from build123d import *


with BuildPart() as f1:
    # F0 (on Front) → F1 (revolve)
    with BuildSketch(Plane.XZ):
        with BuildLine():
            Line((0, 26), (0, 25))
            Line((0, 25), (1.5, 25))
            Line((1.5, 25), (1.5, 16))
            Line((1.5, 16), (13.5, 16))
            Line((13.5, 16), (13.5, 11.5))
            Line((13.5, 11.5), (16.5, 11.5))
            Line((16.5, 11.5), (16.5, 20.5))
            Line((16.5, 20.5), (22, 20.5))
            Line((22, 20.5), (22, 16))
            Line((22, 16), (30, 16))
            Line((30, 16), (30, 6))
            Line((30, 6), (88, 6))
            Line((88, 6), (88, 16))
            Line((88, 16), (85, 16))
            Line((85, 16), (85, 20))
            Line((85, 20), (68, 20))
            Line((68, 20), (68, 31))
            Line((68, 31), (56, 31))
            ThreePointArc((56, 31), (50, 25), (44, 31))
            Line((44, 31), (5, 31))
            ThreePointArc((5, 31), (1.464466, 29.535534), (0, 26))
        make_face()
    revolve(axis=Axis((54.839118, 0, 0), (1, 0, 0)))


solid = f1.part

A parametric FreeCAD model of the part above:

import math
import FreeCAD as App
import Part
import Sketcher

doc = App.newDocument("Part")
body = doc.addObject("PartDesign::Body", "Body")

sketch1 = doc.addObject("Sketcher::SketchObject", "Sketch")
body.addObject(sketch1)
sketch1.AttachmentSupport = (doc.XZ_Plane, [""])
sketch1.MapMode = "FlatFace"
sketch1.addGeometry(Part.LineSegment(App.Vector(0, 26, 0), App.Vector(0, 25, 0)), False)
sketch1.addGeometry(Part.LineSegment(App.Vector(0, 25, 0), App.Vector(1.5, 25, 0)), False)
sketch1.addGeometry(Part.LineSegment(App.Vector(1.5, 25, 0), App.Vector(1.5, 16, 0)), False)
sketch1.addGeometry(Part.LineSegment(App.Vector(1.5, 16, 0), App.Vector(13.5, 16, 0)), False)
sketch1.addGeometry(Part.LineSegment(App.Vector(13.5, 16, 0), App.Vector(13.5, 11.5, 0)), False)
sketch1.addGeometry(Part.LineSegment(App.Vector(13.5, 11.5, 0), App.Vector(16.5, 11.5, 0)), False)
sketch1.addGeometry(Part.LineSegment(App.Vector(16.5, 11.5, 0), App.Vector(16.5, 20.5, 0)), False)
sketch1.addGeometry(Part.LineSegment(App.Vector(16.5, 20.5, 0), App.Vector(22, 20.5, 0)), False)
sketch1.addGeometry(Part.LineSegment(App.Vector(22, 20.5, 0), App.Vector(22, 16, 0)), False)
sketch1.addGeometry(Part.LineSegment(App.Vector(22, 16, 0), App.Vector(30, 16, 0)), False)
sketch1.addGeometry(Part.LineSegment(App.Vector(30, 16, 0), App.Vector(30, 6, 0)), False)
sketch1.addGeometry(Part.LineSegment(App.Vector(30, 6, 0), App.Vector(88, 6, 0)), False)
sketch1.addGeometry(Part.LineSegment(App.Vector(88, 6, 0), App.Vector(88, 16, 0)), False)
sketch1.addGeometry(Part.LineSegment(App.Vector(88, 16, 0), App.Vector(85, 16, 0)), False)
sketch1.addGeometry(Part.LineSegment(App.Vector(85, 16, 0), App.Vector(85, 20, 0)), False)
sketch1.addGeometry(Part.LineSegment(App.Vector(85, 20, 0), App.Vector(68, 20, 0)), False)
sketch1.addGeometry(Part.LineSegment(App.Vector(68, 20, 0), App.Vector(68, 31, 0)), False)
sketch1.addGeometry(Part.LineSegment(App.Vector(68, 31, 0), App.Vector(56, 31, 0)), False)
sketch1.addGeometry(Part.ArcOfCircle(Part.Circle(App.Vector(50, 31, 0), App.Vector(0, 0, 1), 6), math.radians(180), math.radians(360)), False)
sketch1.addGeometry(Part.LineSegment(App.Vector(44, 31, 0), App.Vector(5, 31, 0)), False)
sketch1.addGeometry(Part.ArcOfCircle(Part.Circle(App.Vector(5, 26, 0), App.Vector(0, 0, 1), 5), math.radians(89.999996), math.radians(180.000004)), False)
sketch1.addConstraint(Sketcher.Constraint("Coincident", 0, 2, 1, 1))
sketch1.addConstraint(Sketcher.Constraint("Coincident", 1, 2, 2, 1))
sketch1.addConstraint(Sketcher.Constraint("Coincident", 2, 2, 3, 1))
sketch1.addConstraint(Sketcher.Constraint("Coincident", 3, 2, 4, 1))
sketch1.addConstraint(Sketcher.Constraint("Coincident", 4, 2, 5, 1))
sketch1.addConstraint(Sketcher.Constraint("Coincident", 5, 2, 6, 1))
sketch1.addConstraint(Sketcher.Constraint("Coincident", 6, 2, 7, 1))
sketch1.addConstraint(Sketcher.Constraint("Coincident", 7, 2, 8, 1))
sketch1.addConstraint(Sketcher.Constraint("Coincident", 8, 2, 9, 1))
sketch1.addConstraint(Sketcher.Constraint("Coincident", 9, 2, 10, 1))
sketch1.addConstraint(Sketcher.Constraint("Coincident", 10, 2, 11, 1))
sketch1.addConstraint(Sketcher.Constraint("Coincident", 11, 2, 12, 1))
sketch1.addConstraint(Sketcher.Constraint("Coincident", 12, 2, 13, 1))
sketch1.addConstraint(Sketcher.Constraint("Coincident", 13, 2, 14, 1))
sketch1.addConstraint(Sketcher.Constraint("Coincident", 14, 2, 15, 1))
sketch1.addConstraint(Sketcher.Constraint("Coincident", 15, 2, 16, 1))
sketch1.addConstraint(Sketcher.Constraint("Coincident", 16, 2, 17, 1))
sketch1.addConstraint(Sketcher.Constraint("Coincident", 17, 2, 18, 2))
sketch1.addConstraint(Sketcher.Constraint("Coincident", 18, 1, 19, 1))
sketch1.addConstraint(Sketcher.Constraint("Tangent", 19, 2, 20, 1))
sketch1.addConstraint(Sketcher.Constraint("Tangent", 20, 2, 0, 1))
sketch1.addConstraint(Sketcher.Constraint("Vertical", 0))
sketch1.addConstraint(Sketcher.Constraint("Horizontal", 1))
sketch1.addConstraint(Sketcher.Constraint("Vertical", 2))
sketch1.addConstraint(Sketcher.Constraint("Horizontal", 3))
sketch1.addConstraint(Sketcher.Constraint("Vertical", 4))
sketch1.addConstraint(Sketcher.Constraint("Horizontal", 5))
sketch1.addConstraint(Sketcher.Constraint("Vertical", 6))
sketch1.addConstraint(Sketcher.Constraint("Horizontal", 7))
sketch1.addConstraint(Sketcher.Constraint("Vertical", 8))
sketch1.addConstraint(Sketcher.Constraint("Horizontal", 9))
sketch1.addConstraint(Sketcher.Constraint("Vertical", 10))
sketch1.addConstraint(Sketcher.Constraint("Horizontal", 11))
sketch1.addConstraint(Sketcher.Constraint("Vertical", 12))
sketch1.addConstraint(Sketcher.Constraint("Horizontal", 13))
sketch1.addConstraint(Sketcher.Constraint("Vertical", 14))
sketch1.addConstraint(Sketcher.Constraint("Horizontal", 15))
sketch1.addConstraint(Sketcher.Constraint("Vertical", 16))
sketch1.addConstraint(Sketcher.Constraint("Horizontal", 17))
sketch1.addConstraint(Sketcher.Constraint("Horizontal", 19))
sketch1.addConstraint(Sketcher.Constraint("PointOnObject", 0, 2, -2))
sketch1.addConstraint(Sketcher.Constraint("Horizontal", 3, 2, 8, 2))
sketch1.addConstraint(Sketcher.Constraint("Horizontal", 9, 2, 12, 2))
sketch1.addConstraint(Sketcher.Constraint("Horizontal", 18, 3, 16, 2))
sketch1.addConstraint(Sketcher.Constraint("Horizontal", 17, 2, 18, 1))
sketch1.addConstraint(Sketcher.Constraint("Equal", 5, 13))
sketch1.addConstraint(Sketcher.Constraint("Equal", 3, 17))
sketch1.addConstraint(Sketcher.Constraint("Equal", 2, 6))
sketch1.addConstraint(Sketcher.Constraint("Equal", 4, 8))
sketch1.addConstraint(Sketcher.Constraint("Radius", 18, 6.0))
sketch1.addConstraint(Sketcher.Constraint("Radius", 20, 5.0))
sketch1.addConstraint(Sketcher.Constraint("DistanceX", 3, 1, 3, 2, 12.0))
sketch1.addConstraint(Sketcher.Constraint("DistanceX", 5, 1, 5, 2, 3.0))
sketch1.addConstraint(Sketcher.Constraint("DistanceX", 9, 1, 9, 2, 8.0))
sketch1.addConstraint(Sketcher.Constraint("DistanceX", 11, 1, 11, 2, 58.0))
sketch1.addConstraint(Sketcher.Constraint("DistanceX", 15, 2, 15, 1, 17.0))
sketch1.addConstraint(Sketcher.Constraint("DistanceX", 19, 2, 19, 1, 39.0))
sketch1.addConstraint(Sketcher.Constraint("DistanceY", 0, 2, 0, 1, 1.0))
sketch1.addConstraint(Sketcher.Constraint("DistanceY", 2, 2, 2, 1, 9.0))
sketch1.addConstraint(Sketcher.Constraint("DistanceY", 10, 2, 10, 1, 10.0))
sketch1.addConstraint(Sketcher.Constraint("DistanceY", 14, 1, 14, 2, 4.0))
sketch1.addConstraint(Sketcher.Constraint("DistanceX", 1, 1, 1, 2, 1.5))
sketch1.addConstraint(Sketcher.Constraint("DistanceY", -1, 1, 18, 3, 31.0))
revolution = doc.addObject("PartDesign::Revolution", "Revolution")
body.addObject(revolution)
revolution.Profile = sketch1
revolution.ReferenceAxis = (sketch1, ["H_Axis"])
revolution.Angle = 360

doc.recompute()
